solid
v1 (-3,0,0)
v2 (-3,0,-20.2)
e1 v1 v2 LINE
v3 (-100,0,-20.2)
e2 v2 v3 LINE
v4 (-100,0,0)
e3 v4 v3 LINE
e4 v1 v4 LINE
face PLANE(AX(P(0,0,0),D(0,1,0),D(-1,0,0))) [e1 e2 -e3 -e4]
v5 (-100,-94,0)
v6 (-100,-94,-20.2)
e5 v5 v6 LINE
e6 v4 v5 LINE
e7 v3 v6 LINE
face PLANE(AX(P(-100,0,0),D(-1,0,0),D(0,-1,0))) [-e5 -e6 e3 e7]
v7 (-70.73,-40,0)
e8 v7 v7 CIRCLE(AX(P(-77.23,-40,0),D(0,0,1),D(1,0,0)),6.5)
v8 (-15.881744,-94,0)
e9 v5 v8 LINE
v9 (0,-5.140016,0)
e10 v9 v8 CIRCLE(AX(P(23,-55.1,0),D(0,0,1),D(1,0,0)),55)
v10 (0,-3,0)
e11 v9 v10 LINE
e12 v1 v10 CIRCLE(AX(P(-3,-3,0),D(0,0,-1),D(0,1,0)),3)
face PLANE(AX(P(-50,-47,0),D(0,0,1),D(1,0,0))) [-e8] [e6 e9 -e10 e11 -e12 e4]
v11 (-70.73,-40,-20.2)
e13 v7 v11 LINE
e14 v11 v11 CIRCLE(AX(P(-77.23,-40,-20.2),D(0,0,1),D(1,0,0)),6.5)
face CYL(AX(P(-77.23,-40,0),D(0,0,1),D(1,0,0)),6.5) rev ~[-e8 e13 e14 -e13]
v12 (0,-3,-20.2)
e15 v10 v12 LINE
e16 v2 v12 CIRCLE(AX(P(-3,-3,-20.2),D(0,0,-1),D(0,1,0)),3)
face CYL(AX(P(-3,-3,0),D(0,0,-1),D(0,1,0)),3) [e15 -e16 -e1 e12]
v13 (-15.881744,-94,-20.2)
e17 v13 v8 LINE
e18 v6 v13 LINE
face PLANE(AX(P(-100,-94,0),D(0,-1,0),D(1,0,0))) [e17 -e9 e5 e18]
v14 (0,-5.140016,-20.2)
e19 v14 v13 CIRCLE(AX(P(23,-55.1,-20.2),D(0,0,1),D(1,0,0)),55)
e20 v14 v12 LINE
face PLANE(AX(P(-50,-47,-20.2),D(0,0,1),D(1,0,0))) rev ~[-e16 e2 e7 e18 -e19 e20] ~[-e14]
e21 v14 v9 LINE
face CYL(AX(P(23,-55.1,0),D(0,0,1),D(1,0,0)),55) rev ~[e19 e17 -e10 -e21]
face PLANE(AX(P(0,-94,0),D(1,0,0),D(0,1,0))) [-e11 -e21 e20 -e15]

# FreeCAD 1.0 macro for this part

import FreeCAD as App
import Part
import Sketcher
Q = App.Units.Quantity


def edges_at(feature, points):
    """Names of the edges that pass closest to the given points."""
    edges = feature.Shape.Edges
    near = lambda p: min(range(len(edges)), key=lambda i: edges[i].distToShape(Part.Vertex(*p))[0])
    return sorted({f"Edge{near(p) + 1}" for p in points})


def add_polygon(sketch, points):
    """Adds a closed chain of lines whose ends are joined by coincident constraints."""
    first, n = sketch.GeometryCount, len(points)
    for a, b in zip(points, points[1:] + points[:1]):
        sketch.addGeometry(Part.LineSegment(App.Vector(*a, 0), App.Vector(*b, 0)), False)
    for i in range(n):
        sketch.addConstraint(Sketcher.Constraint("Coincident", first + i, 2, first + (i + 1) % n, 1))

doc = App.newDocument("Part")
body = doc.addObject("PartDesign::Body", "Body")

# Sketch on XY plane
sketch1 = body.newObject("Sketcher::SketchObject", "Sketch")
sketch1.AttachmentSupport = (doc.getObject("XY_Plane"), [""])
sketch1.MapMode = "FlatFace"
add_polygon(sketch1, [(0, -94), (0, 0), (-100, 0), (-100, -94)])  # lines 0-3
sketch1.addConstraint(Sketcher.Constraint("Vertical", 0))
sketch1.addConstraint(Sketcher.Constraint("Horizontal", 1))
sketch1.addConstraint(Sketcher.Constraint("Vertical", 2))
sketch1.addConstraint(Sketcher.Constraint("Horizontal", 3))
sketch1.addConstraint(Sketcher.Constraint("Coincident", 0, 2, -1, 1))
sketch1.addConstraint(Sketcher.Constraint("DistanceX", 1, 2, 1, 1, Q("100 mm")))
sketch1.addConstraint(Sketcher.Constraint("DistanceY", 0, 1, 0, 2, Q("94 mm")))
pad1 = body.newObject("PartDesign::Pad", "Pad")
pad1.Profile = sketch1
pad1.Length = 20.2
pad1.Reversed = True

# Sketch on XY plane
sketch2 = body.newObject("Sketcher::SketchObject", "Sketch001")
sketch2.AttachmentSupport = (doc.getObject("XY_Plane"), [""])
sketch2.MapMode = "FlatFace"
sketch2.addGeometry(Part.Circle(App.Vector(-77, -40, 0), App.Vector(0, 0, 1), 6), False)
sketch2.addGeometry(Part.Circle(App.Vector(23, -55, 0), App.Vector(0, 0, 1), 55), False)
sketch2.addConstraint(Sketcher.Constraint("Diameter", 0, Q("13 mm")))
sketch2.addConstraint(Sketcher.Constraint("Diameter", 1, Q("110 mm")))
sketch2.addConstraint(Sketcher.Constraint("DistanceY", 0, 3, -1, 1, Q("40 mm")))
sketch2.addConstraint(Sketcher.Constraint("DistanceX", -1, 1, 1, 3, Q("23 mm")))
sketch2.addConstraint(Sketcher.Constraint("DistanceY", 1, 3, -1, 1, Q("55.1 mm")))
sketch2.addConstraint(Sketcher.Constraint("DistanceX", 0, 3, -1, 1, Q("77.23 mm")))
pocket1 = body.newObject("PartDesign::Pocket", "Pocket")
pocket1.Profile = sketch2
pocket1.Length = 21
doc.recompute()

fillet = body.newObject("PartDesign::Fillet", "Fillet")
fillet.Base = (pocket1, edges_at(pocket1, [(0, 0, -10.1)]))
fillet.Radius = 3

doc.recompute()
